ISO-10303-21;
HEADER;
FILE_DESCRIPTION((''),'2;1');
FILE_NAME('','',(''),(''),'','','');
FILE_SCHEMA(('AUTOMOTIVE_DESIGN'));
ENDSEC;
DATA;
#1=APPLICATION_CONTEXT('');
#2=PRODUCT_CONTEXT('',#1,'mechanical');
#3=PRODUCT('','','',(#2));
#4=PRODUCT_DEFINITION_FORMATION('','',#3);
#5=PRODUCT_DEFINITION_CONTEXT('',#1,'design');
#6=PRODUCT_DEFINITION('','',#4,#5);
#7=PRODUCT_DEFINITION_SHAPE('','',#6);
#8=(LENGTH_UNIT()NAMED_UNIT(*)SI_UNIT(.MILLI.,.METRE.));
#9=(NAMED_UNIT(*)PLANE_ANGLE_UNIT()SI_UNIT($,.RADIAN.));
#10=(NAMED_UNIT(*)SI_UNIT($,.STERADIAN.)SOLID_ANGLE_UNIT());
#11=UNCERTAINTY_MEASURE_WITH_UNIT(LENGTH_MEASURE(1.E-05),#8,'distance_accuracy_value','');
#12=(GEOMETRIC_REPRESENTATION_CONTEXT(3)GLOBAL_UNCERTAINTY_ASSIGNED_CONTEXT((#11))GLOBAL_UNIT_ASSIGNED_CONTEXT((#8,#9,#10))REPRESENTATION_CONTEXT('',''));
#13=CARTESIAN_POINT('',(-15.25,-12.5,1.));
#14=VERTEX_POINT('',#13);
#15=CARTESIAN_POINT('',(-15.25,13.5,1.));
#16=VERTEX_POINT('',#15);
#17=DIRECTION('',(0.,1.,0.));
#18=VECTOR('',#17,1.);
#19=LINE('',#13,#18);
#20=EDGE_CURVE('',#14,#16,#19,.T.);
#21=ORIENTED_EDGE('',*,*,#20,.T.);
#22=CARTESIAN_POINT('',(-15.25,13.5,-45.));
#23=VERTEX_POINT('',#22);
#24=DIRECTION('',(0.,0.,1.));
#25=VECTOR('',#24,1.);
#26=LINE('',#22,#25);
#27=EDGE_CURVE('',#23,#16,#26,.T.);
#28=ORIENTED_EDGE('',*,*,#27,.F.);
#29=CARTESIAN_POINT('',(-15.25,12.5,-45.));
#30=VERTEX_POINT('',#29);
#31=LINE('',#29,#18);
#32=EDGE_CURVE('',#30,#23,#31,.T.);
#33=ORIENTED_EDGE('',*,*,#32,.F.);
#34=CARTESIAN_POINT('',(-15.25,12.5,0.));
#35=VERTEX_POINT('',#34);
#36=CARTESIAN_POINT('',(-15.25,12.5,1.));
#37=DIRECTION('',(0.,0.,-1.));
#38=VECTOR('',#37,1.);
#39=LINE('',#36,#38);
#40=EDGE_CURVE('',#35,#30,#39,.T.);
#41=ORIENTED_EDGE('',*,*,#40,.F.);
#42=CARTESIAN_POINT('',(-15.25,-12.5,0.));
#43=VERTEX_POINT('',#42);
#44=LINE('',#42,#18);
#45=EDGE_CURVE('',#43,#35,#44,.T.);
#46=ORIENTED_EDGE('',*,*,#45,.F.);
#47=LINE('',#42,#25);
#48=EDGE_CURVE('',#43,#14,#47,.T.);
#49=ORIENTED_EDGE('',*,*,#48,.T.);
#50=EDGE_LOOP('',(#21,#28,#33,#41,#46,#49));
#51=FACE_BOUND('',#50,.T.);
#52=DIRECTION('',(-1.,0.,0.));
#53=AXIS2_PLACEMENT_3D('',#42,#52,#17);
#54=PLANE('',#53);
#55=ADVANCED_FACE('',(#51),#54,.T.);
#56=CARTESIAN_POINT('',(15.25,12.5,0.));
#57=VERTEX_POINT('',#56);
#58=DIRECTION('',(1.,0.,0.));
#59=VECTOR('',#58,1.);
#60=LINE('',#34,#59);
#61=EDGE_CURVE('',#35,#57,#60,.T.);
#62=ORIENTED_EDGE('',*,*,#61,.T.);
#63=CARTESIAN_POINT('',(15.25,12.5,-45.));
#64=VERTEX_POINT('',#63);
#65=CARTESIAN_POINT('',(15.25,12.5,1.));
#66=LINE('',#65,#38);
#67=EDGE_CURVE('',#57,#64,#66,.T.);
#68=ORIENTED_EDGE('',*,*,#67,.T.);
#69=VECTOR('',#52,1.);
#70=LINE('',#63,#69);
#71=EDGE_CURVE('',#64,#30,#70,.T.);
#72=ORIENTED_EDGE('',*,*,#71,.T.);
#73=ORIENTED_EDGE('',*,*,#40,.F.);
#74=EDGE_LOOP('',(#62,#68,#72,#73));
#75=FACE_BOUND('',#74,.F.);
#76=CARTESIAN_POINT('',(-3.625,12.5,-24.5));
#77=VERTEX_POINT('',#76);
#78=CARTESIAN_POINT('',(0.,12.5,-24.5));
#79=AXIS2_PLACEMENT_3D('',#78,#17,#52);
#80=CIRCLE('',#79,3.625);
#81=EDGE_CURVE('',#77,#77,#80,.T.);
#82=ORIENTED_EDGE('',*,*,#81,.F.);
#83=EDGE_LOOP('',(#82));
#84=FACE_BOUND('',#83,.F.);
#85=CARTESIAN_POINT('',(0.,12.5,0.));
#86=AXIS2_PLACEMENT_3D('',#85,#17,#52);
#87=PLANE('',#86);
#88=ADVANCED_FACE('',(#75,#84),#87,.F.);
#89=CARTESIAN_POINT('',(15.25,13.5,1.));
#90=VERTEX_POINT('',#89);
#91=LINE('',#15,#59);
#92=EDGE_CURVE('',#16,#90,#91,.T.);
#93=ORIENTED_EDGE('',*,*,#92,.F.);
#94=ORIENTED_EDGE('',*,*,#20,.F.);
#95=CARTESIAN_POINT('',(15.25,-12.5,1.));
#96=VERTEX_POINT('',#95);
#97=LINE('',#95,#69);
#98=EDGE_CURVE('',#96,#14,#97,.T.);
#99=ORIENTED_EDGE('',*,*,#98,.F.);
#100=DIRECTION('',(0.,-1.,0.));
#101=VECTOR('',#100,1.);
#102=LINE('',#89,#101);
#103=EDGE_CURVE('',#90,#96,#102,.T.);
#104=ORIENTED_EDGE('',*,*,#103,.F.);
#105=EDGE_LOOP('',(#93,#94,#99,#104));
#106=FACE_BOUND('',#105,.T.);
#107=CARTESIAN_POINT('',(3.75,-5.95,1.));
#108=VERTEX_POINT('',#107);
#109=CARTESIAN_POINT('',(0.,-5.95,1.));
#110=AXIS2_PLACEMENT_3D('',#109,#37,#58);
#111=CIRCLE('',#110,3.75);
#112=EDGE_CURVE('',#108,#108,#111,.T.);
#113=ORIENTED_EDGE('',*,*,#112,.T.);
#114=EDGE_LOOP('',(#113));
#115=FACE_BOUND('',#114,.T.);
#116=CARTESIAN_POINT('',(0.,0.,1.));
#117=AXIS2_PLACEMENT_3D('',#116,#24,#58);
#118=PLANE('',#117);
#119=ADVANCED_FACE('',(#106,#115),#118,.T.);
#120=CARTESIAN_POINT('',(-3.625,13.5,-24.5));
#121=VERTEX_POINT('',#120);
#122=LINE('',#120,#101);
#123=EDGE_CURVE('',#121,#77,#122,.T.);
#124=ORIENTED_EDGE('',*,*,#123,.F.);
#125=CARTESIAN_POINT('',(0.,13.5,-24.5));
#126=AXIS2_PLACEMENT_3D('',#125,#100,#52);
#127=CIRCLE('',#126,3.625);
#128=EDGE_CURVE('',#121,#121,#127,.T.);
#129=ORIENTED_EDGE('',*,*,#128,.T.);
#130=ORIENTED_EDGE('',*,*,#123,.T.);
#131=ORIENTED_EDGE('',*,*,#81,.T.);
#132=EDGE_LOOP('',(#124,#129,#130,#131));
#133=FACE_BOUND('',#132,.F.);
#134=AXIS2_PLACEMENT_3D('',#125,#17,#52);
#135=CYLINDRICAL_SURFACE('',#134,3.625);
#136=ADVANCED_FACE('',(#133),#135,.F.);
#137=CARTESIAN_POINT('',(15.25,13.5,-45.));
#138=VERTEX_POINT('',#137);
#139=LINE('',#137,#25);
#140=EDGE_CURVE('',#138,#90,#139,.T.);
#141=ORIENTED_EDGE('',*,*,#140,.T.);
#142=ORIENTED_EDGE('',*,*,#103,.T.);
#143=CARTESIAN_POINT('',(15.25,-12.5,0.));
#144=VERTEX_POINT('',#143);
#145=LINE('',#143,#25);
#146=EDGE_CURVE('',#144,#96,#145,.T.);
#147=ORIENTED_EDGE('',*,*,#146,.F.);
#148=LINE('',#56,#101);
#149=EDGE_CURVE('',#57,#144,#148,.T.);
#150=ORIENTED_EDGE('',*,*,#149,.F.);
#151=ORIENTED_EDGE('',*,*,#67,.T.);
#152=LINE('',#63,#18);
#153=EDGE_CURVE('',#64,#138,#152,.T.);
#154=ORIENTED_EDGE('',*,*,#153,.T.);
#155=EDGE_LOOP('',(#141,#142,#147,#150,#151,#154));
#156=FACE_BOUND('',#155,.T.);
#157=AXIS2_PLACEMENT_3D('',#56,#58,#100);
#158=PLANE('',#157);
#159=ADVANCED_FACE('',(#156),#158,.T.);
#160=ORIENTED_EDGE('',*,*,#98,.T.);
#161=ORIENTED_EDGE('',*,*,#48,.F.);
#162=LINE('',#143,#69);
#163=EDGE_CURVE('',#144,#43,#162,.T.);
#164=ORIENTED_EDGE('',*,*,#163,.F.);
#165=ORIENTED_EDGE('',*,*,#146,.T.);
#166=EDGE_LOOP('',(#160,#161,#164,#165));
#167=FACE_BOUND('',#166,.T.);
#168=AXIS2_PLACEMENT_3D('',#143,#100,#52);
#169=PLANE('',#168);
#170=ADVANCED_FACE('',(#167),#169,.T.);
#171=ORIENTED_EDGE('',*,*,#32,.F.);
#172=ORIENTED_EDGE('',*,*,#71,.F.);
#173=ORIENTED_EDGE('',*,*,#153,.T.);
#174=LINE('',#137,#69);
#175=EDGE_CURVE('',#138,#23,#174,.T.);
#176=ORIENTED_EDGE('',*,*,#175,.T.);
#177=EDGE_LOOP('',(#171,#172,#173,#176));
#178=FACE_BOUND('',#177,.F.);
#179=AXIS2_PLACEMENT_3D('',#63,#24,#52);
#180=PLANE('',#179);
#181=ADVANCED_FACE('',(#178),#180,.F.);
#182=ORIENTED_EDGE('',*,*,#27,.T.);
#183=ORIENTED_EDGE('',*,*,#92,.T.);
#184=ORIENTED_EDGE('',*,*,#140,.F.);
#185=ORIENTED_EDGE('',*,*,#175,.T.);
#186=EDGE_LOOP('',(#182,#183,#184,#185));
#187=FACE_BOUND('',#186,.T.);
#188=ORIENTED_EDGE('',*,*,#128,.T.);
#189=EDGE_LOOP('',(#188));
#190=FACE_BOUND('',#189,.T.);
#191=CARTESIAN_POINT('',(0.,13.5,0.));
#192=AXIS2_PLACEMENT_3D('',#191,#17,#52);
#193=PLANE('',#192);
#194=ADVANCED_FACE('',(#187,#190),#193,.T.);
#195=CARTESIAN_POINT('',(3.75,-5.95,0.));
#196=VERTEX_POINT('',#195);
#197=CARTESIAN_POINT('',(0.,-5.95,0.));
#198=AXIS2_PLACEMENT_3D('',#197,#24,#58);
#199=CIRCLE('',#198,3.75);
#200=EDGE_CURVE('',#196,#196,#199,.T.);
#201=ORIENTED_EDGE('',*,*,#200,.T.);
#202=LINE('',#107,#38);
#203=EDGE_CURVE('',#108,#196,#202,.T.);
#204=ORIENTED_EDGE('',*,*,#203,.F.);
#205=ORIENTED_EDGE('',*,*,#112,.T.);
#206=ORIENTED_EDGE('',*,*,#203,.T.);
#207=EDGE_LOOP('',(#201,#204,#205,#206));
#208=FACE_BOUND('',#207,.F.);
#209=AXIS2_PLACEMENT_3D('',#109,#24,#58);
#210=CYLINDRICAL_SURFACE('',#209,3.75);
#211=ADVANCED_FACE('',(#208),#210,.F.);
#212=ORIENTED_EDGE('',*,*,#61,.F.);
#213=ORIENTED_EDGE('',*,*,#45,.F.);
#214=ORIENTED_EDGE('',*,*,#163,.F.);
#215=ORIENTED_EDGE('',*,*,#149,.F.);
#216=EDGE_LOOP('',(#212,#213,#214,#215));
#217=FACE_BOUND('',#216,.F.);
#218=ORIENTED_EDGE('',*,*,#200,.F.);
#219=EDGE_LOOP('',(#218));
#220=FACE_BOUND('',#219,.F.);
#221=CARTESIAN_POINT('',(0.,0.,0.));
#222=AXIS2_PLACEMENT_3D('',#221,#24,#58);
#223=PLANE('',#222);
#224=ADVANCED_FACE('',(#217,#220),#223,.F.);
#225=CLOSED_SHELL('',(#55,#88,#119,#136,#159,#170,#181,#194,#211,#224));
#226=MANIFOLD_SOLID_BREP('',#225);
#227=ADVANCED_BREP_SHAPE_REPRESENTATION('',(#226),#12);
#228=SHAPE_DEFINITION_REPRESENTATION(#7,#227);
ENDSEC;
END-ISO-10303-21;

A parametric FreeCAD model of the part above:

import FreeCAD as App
import Part
import Sketcher

V = App.Vector

doc = App.newDocument("Part")
body = doc.addObject("PartDesign::Body", "Body")

# Sketch on XY plane
sketch1 = body.newObject("Sketcher::SketchObject", "Sketch")
sketch1.AttachmentSupport = (doc.getObject("XY_Plane"), [""])
sketch1.MapMode = "FlatFace"
sketch1.addGeometry([
    Part.LineSegment(V(-15, -12, 0), V(15, -12, 0)),
    Part.LineSegment(V(15, -12, 0), V(15, 12, 0)),
    Part.LineSegment(V(15, 12, 0), V(-15, 12, 0)),
    Part.LineSegment(V(-15, 12, 0), V(-15, -12, 0)),
], False)
sketch1.addConstraint([
    Sketcher.Constraint("Coincident", 0, 2, 1, 1),
    Sketcher.Constraint("Coincident", 1, 2, 2, 1),
    Sketcher.Constraint("Coincident", 2, 2, 3, 1),
    Sketcher.Constraint("Coincident", 3, 2, 0, 1),
    Sketcher.Constraint("Horizontal", 0),
    Sketcher.Constraint("Vertical", 1),
    Sketcher.Constraint("Horizontal", 2),
    Sketcher.Constraint("Vertical", 3),
    Sketcher.Constraint("Symmetric", 0, 2, 2, 2, -1, 1),
    Sketcher.Constraint("DistanceY", 1, 1, 1, 2, 25.0),
    Sketcher.Constraint("DistanceX", 0, 1, 0, 2, 30.5),
])
pad1 = body.newObject("PartDesign::Pad", "Pad")
pad1.Profile = sketch1
pad1.Length = 1

# Sketch on XZ plane
sketch2 = body.newObject("Sketcher::SketchObject", "Sketch001")
sketch2.AttachmentSupport = (doc.getObject("XZ_Plane"), [""])
sketch2.MapMode = "FlatFace"
sketch2.AttachmentOffset = App.Placement(V(0, 0, -12.5), App.Rotation())
sketch2.addGeometry([
    Part.LineSegment(V(15, 1, 0), V(15, -45, 0)),
    Part.LineSegment(V(15, -45, 0), V(-15, -45, 0)),
    Part.LineSegment(V(-15, -45, 0), V(-15, 1, 0)),
    Part.LineSegment(V(-15, 1, 0), V(15, 1, 0)),
], False)
sketch2.addConstraint([
    Sketcher.Constraint("Coincident", 0, 2, 1, 1),
    Sketcher.Constraint("Coincident", 1, 2, 2, 1),
    Sketcher.Constraint("Coincident", 2, 2, 3, 1),
    Sketcher.Constraint("Coincident", 3, 2, 0, 1),
    Sketcher.Constraint("Vertical", 0),
    Sketcher.Constraint("Horizontal", 1),
    Sketcher.Constraint("Vertical", 2),
    Sketcher.Constraint("Horizontal", 3),
    Sketcher.Constraint("DistanceY", 0, 2, 0, 1, 46.0),
    Sketcher.Constraint("DistanceX", 1, 2, 1, 1, 30.5),
    Sketcher.Constraint("DistanceY", 0, 2, -1, 1, 45.0),
    Sketcher.Constraint("DistanceX", -1, 1, 0, 2, 15.25),
])
pad2 = body.newObject("PartDesign::Pad", "Pad001")
pad2.Profile = sketch2
pad2.Length = 1
pad2.Reversed = True

# Sketch on XY plane
sketch3 = body.newObject("Sketcher::SketchObject", "Sketch002")
sketch3.AttachmentSupport = (doc.getObject("XY_Plane"), [""])
sketch3.MapMode = "FlatFace"
sketch3.AttachmentOffset = App.Placement(V(0, 0, 1), App.Rotation())
sketch3.addGeometry(Part.Circle(V(0, -6, 0), V(0, 0, 1), 3.8), False)
sketch3.addConstraint([
    Sketcher.Constraint("PointOnObject", 0, 3, -2),
    Sketcher.Constraint("Diameter", 0, 7.5),
    Sketcher.Constraint("DistanceY", 0, 3, -1, 1, 5.95),
])
pocket1 = body.newObject("PartDesign::Pocket", "Pocket")
pocket1.Profile = sketch3
pocket1.Length = 46

# Sketch on XZ plane
sketch4 = body.newObject("Sketcher::SketchObject", "Sketch003")
sketch4.AttachmentSupport = (doc.getObject("XZ_Plane"), [""])
sketch4.MapMode = "FlatFace"
sketch4.AttachmentOffset = App.Placement(V(0, 0, -13.5), App.Rotation())
sketch4.addGeometry(Part.Circle(V(0, -24.5, 0), V(0, 0, 1), 3.6), False)
sketch4.addConstraint([
    Sketcher.Constraint("PointOnObject", 0, 3, -2),
    Sketcher.Constraint("Diameter", 0, 7.25),
    Sketcher.Constraint("DistanceY", 0, 3, -1, 1, 24.5),
])
pocket2 = body.newObject("PartDesign::Pocket", "Pocket001")
pocket2.Profile = sketch4
pocket2.Length = 20
pocket2.Reversed = True

doc.recompute()
